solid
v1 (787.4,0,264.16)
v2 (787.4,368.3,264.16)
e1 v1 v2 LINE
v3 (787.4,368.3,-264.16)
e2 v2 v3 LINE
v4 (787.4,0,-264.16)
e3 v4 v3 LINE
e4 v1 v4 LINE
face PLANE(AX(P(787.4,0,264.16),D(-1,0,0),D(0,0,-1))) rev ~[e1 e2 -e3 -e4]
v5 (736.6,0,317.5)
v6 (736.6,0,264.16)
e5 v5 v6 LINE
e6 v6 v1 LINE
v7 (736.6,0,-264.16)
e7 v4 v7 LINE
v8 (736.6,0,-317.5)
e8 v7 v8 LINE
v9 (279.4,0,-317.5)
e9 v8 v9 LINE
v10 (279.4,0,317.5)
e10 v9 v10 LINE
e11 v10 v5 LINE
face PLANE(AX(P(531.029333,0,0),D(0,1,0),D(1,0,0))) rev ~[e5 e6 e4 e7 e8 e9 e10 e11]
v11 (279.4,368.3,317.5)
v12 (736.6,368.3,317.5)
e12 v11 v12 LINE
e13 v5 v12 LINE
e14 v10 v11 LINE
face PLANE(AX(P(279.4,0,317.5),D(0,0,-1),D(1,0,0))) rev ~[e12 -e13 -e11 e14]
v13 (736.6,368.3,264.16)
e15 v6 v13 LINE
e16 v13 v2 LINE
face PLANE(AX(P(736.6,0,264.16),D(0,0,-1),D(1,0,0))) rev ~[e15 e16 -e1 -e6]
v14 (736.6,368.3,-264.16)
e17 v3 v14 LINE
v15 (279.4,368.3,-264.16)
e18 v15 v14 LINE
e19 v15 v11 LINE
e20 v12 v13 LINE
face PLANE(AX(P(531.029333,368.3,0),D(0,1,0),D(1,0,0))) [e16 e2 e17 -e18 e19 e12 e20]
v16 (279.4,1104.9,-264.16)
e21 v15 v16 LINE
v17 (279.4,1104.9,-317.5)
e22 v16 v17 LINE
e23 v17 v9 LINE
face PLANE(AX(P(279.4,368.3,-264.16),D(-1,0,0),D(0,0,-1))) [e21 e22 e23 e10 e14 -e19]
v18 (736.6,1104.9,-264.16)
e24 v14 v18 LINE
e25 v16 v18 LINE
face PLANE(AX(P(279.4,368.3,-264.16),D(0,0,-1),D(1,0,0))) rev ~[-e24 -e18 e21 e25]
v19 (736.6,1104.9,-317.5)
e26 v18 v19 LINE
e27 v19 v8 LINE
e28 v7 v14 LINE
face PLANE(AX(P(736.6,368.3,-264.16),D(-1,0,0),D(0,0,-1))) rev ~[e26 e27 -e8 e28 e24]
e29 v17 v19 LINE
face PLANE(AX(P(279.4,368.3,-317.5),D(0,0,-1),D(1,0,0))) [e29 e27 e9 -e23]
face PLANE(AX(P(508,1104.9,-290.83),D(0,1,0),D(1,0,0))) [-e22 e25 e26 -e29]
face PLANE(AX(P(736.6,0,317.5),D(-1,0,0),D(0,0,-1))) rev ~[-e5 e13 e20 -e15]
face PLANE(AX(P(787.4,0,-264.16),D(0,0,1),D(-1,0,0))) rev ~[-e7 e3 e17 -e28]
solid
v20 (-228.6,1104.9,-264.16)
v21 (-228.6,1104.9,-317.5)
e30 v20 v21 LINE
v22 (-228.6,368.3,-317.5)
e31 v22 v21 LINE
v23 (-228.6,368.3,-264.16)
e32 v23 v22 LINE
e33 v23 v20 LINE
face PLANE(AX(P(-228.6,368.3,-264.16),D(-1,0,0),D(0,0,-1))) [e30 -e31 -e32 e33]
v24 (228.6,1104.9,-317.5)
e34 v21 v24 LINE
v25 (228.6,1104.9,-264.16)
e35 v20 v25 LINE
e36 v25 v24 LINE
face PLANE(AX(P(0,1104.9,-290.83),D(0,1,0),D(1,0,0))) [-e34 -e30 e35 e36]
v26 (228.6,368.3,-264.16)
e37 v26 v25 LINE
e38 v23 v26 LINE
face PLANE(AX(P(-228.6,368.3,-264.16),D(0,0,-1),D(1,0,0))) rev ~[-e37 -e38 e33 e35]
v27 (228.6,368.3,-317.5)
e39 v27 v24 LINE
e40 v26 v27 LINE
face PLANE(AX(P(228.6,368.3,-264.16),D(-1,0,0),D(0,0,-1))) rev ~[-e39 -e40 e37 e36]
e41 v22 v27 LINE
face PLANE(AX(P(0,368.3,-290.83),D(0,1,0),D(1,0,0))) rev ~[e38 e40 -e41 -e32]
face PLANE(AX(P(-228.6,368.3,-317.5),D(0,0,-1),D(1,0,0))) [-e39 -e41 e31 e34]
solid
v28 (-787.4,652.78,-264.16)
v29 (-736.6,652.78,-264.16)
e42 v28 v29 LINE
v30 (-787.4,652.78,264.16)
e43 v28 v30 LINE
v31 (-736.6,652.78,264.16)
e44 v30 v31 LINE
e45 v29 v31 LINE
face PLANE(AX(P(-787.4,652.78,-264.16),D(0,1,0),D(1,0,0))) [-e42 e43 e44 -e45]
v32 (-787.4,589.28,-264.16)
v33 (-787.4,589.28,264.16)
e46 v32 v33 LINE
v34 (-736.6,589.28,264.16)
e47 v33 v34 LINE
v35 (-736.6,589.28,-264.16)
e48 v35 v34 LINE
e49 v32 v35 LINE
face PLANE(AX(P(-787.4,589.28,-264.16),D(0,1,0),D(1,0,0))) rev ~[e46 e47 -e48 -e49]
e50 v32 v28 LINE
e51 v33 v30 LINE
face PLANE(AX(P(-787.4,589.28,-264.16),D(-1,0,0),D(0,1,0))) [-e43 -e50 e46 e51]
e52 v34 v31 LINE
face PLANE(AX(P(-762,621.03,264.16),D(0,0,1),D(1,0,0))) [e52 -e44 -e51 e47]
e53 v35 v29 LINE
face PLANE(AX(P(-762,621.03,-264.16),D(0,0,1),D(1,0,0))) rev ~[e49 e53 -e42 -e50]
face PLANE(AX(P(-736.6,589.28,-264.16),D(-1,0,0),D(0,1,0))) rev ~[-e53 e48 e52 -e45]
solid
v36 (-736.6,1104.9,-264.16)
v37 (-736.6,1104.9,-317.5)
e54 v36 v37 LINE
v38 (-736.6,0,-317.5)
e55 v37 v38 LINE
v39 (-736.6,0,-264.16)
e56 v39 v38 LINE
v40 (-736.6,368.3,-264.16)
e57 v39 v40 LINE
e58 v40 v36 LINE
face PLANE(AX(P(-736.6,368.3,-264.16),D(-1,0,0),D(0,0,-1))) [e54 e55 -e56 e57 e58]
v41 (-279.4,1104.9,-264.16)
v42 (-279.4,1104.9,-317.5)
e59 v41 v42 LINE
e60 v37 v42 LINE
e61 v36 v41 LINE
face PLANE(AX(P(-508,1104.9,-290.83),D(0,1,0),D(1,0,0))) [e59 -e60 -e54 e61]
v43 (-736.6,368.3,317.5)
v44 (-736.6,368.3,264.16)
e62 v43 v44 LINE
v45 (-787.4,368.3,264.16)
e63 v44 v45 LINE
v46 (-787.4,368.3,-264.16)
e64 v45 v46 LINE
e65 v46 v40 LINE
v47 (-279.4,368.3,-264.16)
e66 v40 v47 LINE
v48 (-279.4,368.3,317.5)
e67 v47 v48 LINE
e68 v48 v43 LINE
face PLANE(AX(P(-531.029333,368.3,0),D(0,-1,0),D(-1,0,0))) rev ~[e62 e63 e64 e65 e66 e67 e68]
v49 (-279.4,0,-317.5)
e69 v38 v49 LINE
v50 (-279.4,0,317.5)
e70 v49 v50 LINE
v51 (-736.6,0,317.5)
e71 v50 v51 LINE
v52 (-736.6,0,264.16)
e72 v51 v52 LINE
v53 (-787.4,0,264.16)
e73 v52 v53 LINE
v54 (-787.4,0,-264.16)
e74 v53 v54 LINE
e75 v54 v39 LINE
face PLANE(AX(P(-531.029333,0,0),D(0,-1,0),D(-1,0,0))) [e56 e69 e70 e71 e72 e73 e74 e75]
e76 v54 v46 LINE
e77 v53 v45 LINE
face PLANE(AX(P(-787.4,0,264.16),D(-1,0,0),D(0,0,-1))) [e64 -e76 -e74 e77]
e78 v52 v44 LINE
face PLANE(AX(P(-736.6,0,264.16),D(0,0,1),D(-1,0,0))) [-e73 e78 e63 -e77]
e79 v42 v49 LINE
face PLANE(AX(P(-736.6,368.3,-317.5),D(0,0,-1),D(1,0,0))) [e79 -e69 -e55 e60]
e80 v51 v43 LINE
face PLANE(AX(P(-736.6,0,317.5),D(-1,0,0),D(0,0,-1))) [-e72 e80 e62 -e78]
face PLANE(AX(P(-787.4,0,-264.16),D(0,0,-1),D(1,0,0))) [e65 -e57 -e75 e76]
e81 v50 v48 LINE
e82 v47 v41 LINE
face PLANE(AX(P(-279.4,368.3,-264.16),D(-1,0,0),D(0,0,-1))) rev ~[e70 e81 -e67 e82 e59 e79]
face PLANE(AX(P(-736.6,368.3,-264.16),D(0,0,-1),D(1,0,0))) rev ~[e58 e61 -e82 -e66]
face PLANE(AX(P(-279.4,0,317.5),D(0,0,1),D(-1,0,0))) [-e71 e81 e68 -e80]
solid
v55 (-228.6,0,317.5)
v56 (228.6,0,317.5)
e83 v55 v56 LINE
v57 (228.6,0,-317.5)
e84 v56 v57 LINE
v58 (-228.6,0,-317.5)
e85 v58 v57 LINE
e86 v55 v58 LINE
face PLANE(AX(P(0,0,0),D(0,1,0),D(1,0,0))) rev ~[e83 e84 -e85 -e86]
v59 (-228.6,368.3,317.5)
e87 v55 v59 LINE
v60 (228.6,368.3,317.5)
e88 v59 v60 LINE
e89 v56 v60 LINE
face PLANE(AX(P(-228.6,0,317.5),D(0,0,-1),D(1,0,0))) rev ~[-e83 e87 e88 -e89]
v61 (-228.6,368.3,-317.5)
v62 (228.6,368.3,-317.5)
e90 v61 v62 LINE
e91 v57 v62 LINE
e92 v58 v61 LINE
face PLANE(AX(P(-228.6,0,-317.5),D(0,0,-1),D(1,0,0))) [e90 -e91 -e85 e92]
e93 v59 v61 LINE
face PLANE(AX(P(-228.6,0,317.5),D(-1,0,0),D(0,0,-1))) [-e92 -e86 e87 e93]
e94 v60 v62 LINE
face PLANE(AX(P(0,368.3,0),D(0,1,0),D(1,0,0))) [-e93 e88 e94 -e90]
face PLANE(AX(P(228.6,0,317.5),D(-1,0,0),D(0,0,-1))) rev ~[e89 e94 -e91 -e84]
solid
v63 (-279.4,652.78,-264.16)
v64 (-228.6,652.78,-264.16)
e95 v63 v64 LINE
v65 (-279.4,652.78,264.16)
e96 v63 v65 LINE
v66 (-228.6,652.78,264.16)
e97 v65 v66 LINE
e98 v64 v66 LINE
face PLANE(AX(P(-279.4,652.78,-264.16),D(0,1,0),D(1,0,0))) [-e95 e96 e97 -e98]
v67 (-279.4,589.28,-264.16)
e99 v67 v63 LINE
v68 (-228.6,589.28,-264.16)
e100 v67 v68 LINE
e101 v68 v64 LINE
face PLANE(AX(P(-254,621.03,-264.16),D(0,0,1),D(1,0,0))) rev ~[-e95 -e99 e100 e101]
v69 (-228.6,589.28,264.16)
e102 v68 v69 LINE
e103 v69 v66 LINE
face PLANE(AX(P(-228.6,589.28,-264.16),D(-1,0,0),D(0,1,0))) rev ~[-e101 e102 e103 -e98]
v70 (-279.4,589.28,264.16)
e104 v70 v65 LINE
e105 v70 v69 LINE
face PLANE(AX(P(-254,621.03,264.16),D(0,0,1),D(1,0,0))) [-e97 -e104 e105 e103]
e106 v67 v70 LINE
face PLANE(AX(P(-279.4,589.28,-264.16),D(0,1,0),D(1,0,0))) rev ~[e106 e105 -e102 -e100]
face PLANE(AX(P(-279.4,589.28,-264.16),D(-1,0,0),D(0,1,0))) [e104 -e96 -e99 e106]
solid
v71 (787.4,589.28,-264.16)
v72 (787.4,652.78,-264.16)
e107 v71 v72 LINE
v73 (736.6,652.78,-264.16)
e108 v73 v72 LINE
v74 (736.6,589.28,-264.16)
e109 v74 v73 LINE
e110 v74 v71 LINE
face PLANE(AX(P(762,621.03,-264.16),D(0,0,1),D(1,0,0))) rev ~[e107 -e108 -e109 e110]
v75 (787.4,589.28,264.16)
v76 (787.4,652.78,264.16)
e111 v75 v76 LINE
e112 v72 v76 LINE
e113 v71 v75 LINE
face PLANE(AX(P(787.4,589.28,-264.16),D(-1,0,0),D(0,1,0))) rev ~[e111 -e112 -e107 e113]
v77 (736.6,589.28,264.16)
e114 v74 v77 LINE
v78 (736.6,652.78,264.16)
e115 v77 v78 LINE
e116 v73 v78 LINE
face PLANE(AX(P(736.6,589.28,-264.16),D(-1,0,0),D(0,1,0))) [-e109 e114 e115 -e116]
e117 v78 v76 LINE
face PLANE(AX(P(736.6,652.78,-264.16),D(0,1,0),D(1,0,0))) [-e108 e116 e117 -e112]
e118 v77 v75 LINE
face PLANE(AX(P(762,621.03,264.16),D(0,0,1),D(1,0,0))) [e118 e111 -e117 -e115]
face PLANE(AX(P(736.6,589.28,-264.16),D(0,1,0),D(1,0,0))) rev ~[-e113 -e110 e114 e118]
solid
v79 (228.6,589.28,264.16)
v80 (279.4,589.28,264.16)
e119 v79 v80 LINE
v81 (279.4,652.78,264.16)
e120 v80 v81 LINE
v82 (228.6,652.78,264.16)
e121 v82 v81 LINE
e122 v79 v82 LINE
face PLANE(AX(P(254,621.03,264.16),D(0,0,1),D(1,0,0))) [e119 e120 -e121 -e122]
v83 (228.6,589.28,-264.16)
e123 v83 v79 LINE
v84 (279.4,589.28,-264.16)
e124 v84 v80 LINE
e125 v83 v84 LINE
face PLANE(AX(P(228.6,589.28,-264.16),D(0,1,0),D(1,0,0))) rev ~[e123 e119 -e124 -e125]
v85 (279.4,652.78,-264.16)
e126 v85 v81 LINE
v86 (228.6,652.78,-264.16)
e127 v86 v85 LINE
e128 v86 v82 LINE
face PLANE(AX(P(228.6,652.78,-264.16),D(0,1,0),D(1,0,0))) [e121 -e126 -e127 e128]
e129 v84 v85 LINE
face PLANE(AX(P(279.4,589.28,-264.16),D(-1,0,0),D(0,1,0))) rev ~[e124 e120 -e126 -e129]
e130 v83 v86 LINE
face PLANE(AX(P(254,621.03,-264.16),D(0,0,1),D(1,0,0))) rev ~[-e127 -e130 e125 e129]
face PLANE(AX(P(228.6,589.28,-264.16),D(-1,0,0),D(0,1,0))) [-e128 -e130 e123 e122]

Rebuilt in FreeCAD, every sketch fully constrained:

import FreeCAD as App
import Part
import Sketcher
from FreeCAD import Vector
Q = App.Units.Quantity


def add_polygon(sketch, points):
    """Adds a closed chain of lines whose ends are joined by coincident constraints."""
    first, n = sketch.GeometryCount, len(points)
    for a, b in zip(points, points[1:] + points[:1]):
        sketch.addGeometry(Part.LineSegment(App.Vector(*a, 0), App.Vector(*b, 0)), False)
    for i in range(n):
        sketch.addConstraint(Sketcher.Constraint("Coincident", first + i, 2, first + (i + 1) % n, 1))

doc = App.newDocument("Part")
body = doc.addObject("PartDesign::Body", "Body")

# Sketch on XZ plane
sketch1 = doc.addObject("Sketcher::SketchObject", "Sketch")
body.addObject(sketch1)
sketch1.AttachmentSupport = (doc.XZ_Plane, [""])
sketch1.MapMode = "FlatFace"
add_polygon(sketch1, [(-737, -264), (-787, -264), (-787, 264), (-737, 264), (-737, 318), (-279, 318), (-279, -318), (-737, -318)])  # lines 0-7
sketch1.addConstraint(Sketcher.Constraint("Horizontal", 0))
sketch1.addConstraint(Sketcher.Constraint("Vertical", 1))
sketch1.addConstraint(Sketcher.Constraint("Horizontal", 2))
sketch1.addConstraint(Sketcher.Constraint("Vertical", 3))
sketch1.addConstraint(Sketcher.Constraint("Horizontal", 4))
sketch1.addConstraint(Sketcher.Constraint("Vertical", 5))
sketch1.addConstraint(Sketcher.Constraint("Horizontal", 6))
sketch1.addConstraint(Sketcher.Constraint("Vertical", 7))
sketch1.addConstraint(Sketcher.Constraint("Symmetric", 3, 2, 6, 2, -1))
sketch1.addConstraint(Sketcher.Constraint("Equal", 3, 7))
sketch1.addConstraint(Sketcher.Constraint("DistanceX", 0, 2, 0, 1, Q("2 in")))
sketch1.addConstraint(Sketcher.Constraint("DistanceX", 4, 1, 4, 2, Q("18 in")))
sketch1.addConstraint(Sketcher.Constraint("DistanceY", 5, 2, 5, 1, Q("25 in")))
sketch1.addConstraint(Sketcher.Constraint("DistanceY", 1, 1, 1, 2, Q("20.8 in")))
sketch1.addConstraint(Sketcher.Constraint("DistanceX", 0, 2, -1, 1, Q("31 in")))
pad1 = doc.addObject("PartDesign::Pad", "Pad")
body.addObject(pad1)
pad1.Profile = sketch1
pad1.Length = Q("14.5 in")
pad1.Reversed = True
body2 = doc.addObject("PartDesign::Body", "Body001")

# Sketch on XZ plane
sketch2 = doc.addObject("Sketcher::SketchObject", "Sketch001")
body2.addObject(sketch2)
sketch2.AttachmentSupport = (doc.getObject("XZ_Plane001"), [""])
sketch2.MapMode = "FlatFace"
add_polygon(sketch2, [(279, 318), (737, 318), (737, 264), (787, 264), (787, -264), (737, -264), (737, -318), (279, -318)])  # lines 0-7
sketch2.addConstraint(Sketcher.Constraint("Horizontal", 0))
sketch2.addConstraint(Sketcher.Constraint("Vertical", 1))
sketch2.addConstraint(Sketcher.Constraint("Horizontal", 2))
sketch2.addConstraint(Sketcher.Constraint("Vertical", 3))
sketch2.addConstraint(Sketcher.Constraint("Horizontal", 4))
sketch2.addConstraint(Sketcher.Constraint("Vertical", 5))
sketch2.addConstraint(Sketcher.Constraint("Horizontal", 6))
sketch2.addConstraint(Sketcher.Constraint("Vertical", 7))
sketch2.addConstraint(Sketcher.Constraint("Symmetric", 1, 2, 4, 2, -1))
sketch2.addConstraint(Sketcher.Constraint("Equal", 1, 5))
sketch2.addConstraint(Sketcher.Constraint("DistanceX", 0, 1, 0, 2, Q("18 in")))
sketch2.addConstraint(Sketcher.Constraint("DistanceX", 2, 1, 2, 2, Q("2 in")))
sketch2.addConstraint(Sketcher.Constraint("DistanceY", 7, 1, 7, 2, Q("25 in")))
sketch2.addConstraint(Sketcher.Constraint("DistanceY", 1, 2, 1, 1, Q("2.1 in")))
sketch2.addConstraint(Sketcher.Constraint("DistanceX", -1, 1, 0, 2, Q("29 in")))
pad2 = doc.addObject("PartDesign::Pad", "Pad001")
body2.addObject(pad2)
pad2.Profile = sketch2
pad2.Length = Q("14.5 in")
pad2.Reversed = True
body3 = doc.addObject("PartDesign::Body", "Body002")

# Sketch on XZ plane
sketch3 = doc.addObject("Sketcher::SketchObject", "Sketch002")
body3.addObject(sketch3)
sketch3.AttachmentSupport = (doc.getObject("XZ_Plane002"), [""])
sketch3.MapMode = "FlatFace"
add_polygon(sketch3, [(-229, -318), (-229, 318), (229, 318), (229, -318)])  # lines 0-3
sketch3.addConstraint(Sketcher.Constraint("Vertical", 0))
sketch3.addConstraint(Sketcher.Constraint("Horizontal", 1))
sketch3.addConstraint(Sketcher.Constraint("Vertical", 2))
sketch3.addConstraint(Sketcher.Constraint("Horizontal", 3))
sketch3.addConstraint(Sketcher.Constraint("Symmetric", 0, 2, 2, 2, -1, 1))
sketch3.addConstraint(Sketcher.Constraint("DistanceX", 1, 1, 1, 2, Q("18 in")))
sketch3.addConstraint(Sketcher.Constraint("DistanceY", 0, 1, 0, 2, Q("25 in")))
pad3 = doc.addObject("PartDesign::Pad", "Pad002")
body3.addObject(pad3)
pad3.Profile = sketch3
pad3.Length = Q("14.5 in")
pad3.Reversed = True
body.AllowCompound = True
doc.recompute()

boolean = doc.addObject("PartDesign::Boolean", "Boolean")
body.addObject(boolean)
boolean.Type = "Fuse"
boolean.addObjects([body2])

# Sketch on XZ plane
sketch4 = doc.addObject("Sketcher::SketchObject", "Sketch003")
body.addObject(sketch4)
sketch4.AttachmentSupport = (doc.XZ_Plane, [""])
sketch4.MapMode = "FlatFace"
sketch4.AttachmentOffset = App.Placement(Vector(0, 0, -14.5 * 25.4), App.Rotation())
add_polygon(sketch4, [(-737, -318), (-737, -264), (-279, -264), (-279, -318)])  # lines 0-3
add_polygon(sketch4, [(279, -318), (279, -264), (737, -264), (737, -318)])  # lines 4-7
add_polygon(sketch4, [(-229, -318), (-229, -264), (229, -264), (229, -318)])  # lines 8-11
sketch4.addConstraint(Sketcher.Constraint("Vertical", 0))
sketch4.addConstraint(Sketcher.Constraint("Horizontal", 1))
sketch4.addConstraint(Sketcher.Constraint("Vertical", 2))
sketch4.addConstraint(Sketcher.Constraint("Horizontal", 3))
sketch4.addConstraint(Sketcher.Constraint("Vertical", 4))
sketch4.addConstraint(Sketcher.Constraint("Horizontal", 5))
sketch4.addConstraint(Sketcher.Constraint("Vertical", 6))
sketch4.addConstraint(Sketcher.Constraint("Horizontal", 7))
sketch4.addConstraint(Sketcher.Constraint("Vertical", 8))
sketch4.addConstraint(Sketcher.Constraint("Horizontal", 9))
sketch4.addConstraint(Sketcher.Constraint("Vertical", 10))
sketch4.addConstraint(Sketcher.Constraint("Horizontal", 11))
sketch4.addConstraint(Sketcher.Constraint("Symmetric", 1, 2, 4, 2, -2))
sketch4.addConstraint(Sketcher.Constraint("Symmetric", 3, 2, 6, 2, -2))
sketch4.addConstraint(Sketcher.Constraint("Horizontal", 5, 2, 8, 2))
sketch4.addConstraint(Sketcher.Constraint("Horizontal", 7, 2, 10, 2))
sketch4.addConstraint(Sketcher.Constraint("Equal", 7, 9))
sketch4.addConstraint(Sketcher.Constraint("DistanceX", 1, 1, 1, 2, Q("18 in")))
sketch4.addConstraint(Sketcher.Constraint("DistanceY", 0, 1, 0, 2, Q("2.1 in")))
sketch4.addConstraint(Sketcher.Constraint("DistanceX", 0, 2, -1, 1, Q("29 in")))
sketch4.addConstraint(Sketcher.Constraint("DistanceX", 8, 2, -1, 1, Q("9 in")))
sketch4.addConstraint(Sketcher.Constraint("DistanceY", 0, 2, -1, 1, Q("10.4 in")))
pad4 = doc.addObject("PartDesign::Pad", "Pad003")
body.addObject(pad4)
pad4.Profile = sketch4
pad4.Length = Q("29 in")
pad4.Reversed = True
body4 = doc.addObject("PartDesign::Body", "Body003")

# Sketch on XY plane
sketch5 = doc.addObject("Sketcher::SketchObject", "Sketch004")
body4.addObject(sketch5)
sketch5.AttachmentSupport = (doc.getObject("XY_Plane003"), [""])
sketch5.MapMode = "FlatFace"
sketch5.AttachmentOffset = App.Placement(Vector(0, 0, -10.4 * 25.4), App.Rotation())
add_polygon(sketch5, [(-787, 653), (-787, 589), (-737, 589), (-737, 653)])  # lines 0-3
sketch5.addConstraint(Sketcher.Constraint("Vertical", 0))
sketch5.addConstraint(Sketcher.Constraint("Horizontal", 1))
sketch5.addConstraint(Sketcher.Constraint("Vertical", 2))
sketch5.addConstraint(Sketcher.Constraint("Horizontal", 3))
sketch5.addConstraint(Sketcher.Constraint("DistanceX", 1, 1, 1, 2, Q("2 in")))
sketch5.addConstraint(Sketcher.Constraint("DistanceY", 0, 2, 0, 1, Q("2.5 in")))
sketch5.addConstraint(Sketcher.Constraint("DistanceX", 0, 2, -1, 1, Q("31 in")))
sketch5.addConstraint(Sketcher.Constraint("DistanceY", -1, 1, 0, 2, Q("23.2 in")))
pad5 = doc.addObject("PartDesign::Pad", "Pad004")
body4.addObject(pad5)
pad5.Profile = sketch5
pad5.Length = Q("20.8 in")
body5 = doc.addObject("PartDesign::Body", "Body004")

# Sketch on XY plane
sketch6 = doc.addObject("Sketcher::SketchObject", "Sketch005")
body5.addObject(sketch6)
sketch6.AttachmentSupport = (doc.getObject("XY_Plane004"), [""])
sketch6.MapMode = "FlatFace"
sketch6.AttachmentOffset = App.Placement(Vector(0, 0, -10.4 * 25.4), App.Rotation())
add_polygon(sketch6, [(737, 653), (737, 589), (787, 589), (787, 653)])  # lines 0-3
sketch6.addConstraint(Sketcher.Constraint("Vertical", 0))
sketch6.addConstraint(Sketcher.Constraint("Horizontal", 1))
sketch6.addConstraint(Sketcher.Constraint("Vertical", 2))
sketch6.addConstraint(Sketcher.Constraint("Horizontal", 3))
sketch6.addConstraint(Sketcher.Constraint("DistanceX", 1, 1, 1, 2, Q("2 in")))
sketch6.addConstraint(Sketcher.Constraint("DistanceY", 0, 2, 0, 1, Q("2.5 in")))
sketch6.addConstraint(Sketcher.Constraint("DistanceX", -1, 1, 0, 2, Q("29 in")))
sketch6.addConstraint(Sketcher.Constraint("DistanceY", -1, 1, 0, 2, Q("23.2 in")))
pad6 = doc.addObject("PartDesign::Pad", "Pad005")
body5.addObject(pad6)
pad6.Profile = sketch6
pad6.Length = Q("20.8 in")
body6 = doc.addObject("PartDesign::Body", "Body005")

# Sketch on XY plane
sketch7 = doc.addObject("Sketcher::SketchObject", "Sketch006")
body6.addObject(sketch7)
sketch7.AttachmentSupport = (doc.getObject("XY_Plane005"), [""])
sketch7.MapMode = "FlatFace"
sketch7.AttachmentOffset = App.Placement(Vector(0, 0, -10.4 * 25.4), App.Rotation())
add_polygon(sketch7, [(-279, 653), (-279, 589), (-229, 589), (-229, 653)])  # lines 0-3
sketch7.addConstraint(Sketcher.Constraint("Vertical", 0))
sketch7.addConstraint(Sketcher.Constraint("Horizontal", 1))
sketch7.addConstraint(Sketcher.Constraint("Vertical", 2))
sketch7.addConstraint(Sketcher.Constraint("Horizontal", 3))
sketch7.addConstraint(Sketcher.Constraint("DistanceX", 1, 1, 1, 2, Q("2 in")))
sketch7.addConstraint(Sketcher.Constraint("DistanceY", 0, 2, 0, 1, Q("2.5 in")))
sketch7.addConstraint(Sketcher.Constraint("DistanceX", 0, 2, -1, 1, Q("11 in")))
sketch7.addConstraint(Sketcher.Constraint("DistanceY", -1, 1, 0, 2, Q("23.2 in")))
pad7 = doc.addObject("PartDesign::Pad", "Pad006")
body6.addObject(pad7)
pad7.Profile = sketch7
pad7.Length = Q("20.8 in")
body7 = doc.addObject("PartDesign::Body", "Body006")

# Sketch on XY plane
sketch8 = doc.addObject("Sketcher::SketchObject", "Sketch007")
body7.addObject(sketch8)
sketch8.AttachmentSupport = (doc.getObject("XY_Plane006"), [""])
sketch8.MapMode = "FlatFace"
sketch8.AttachmentOffset = App.Placement(Vector(0, 0, -10.4 * 25.4), App.Rotation())
add_polygon(sketch8, [(229, 653), (229, 589), (279, 589), (279, 653)])  # lines 0-3
sketch8.addConstraint(Sketcher.Constraint("Vertical", 0))
sketch8.addConstraint(Sketcher.Constraint("Horizontal", 1))
sketch8.addConstraint(Sketcher.Constraint("Vertical", 2))
sketch8.addConstraint(Sketcher.Constraint("Horizontal", 3))
sketch8.addConstraint(Sketcher.Constraint("DistanceX", 1, 1, 1, 2, Q("2 in")))
sketch8.addConstraint(Sketcher.Constraint("DistanceY", 0, 2, 0, 1, Q("2.5 in")))
sketch8.addConstraint(Sketcher.Constraint("DistanceX", -1, 1, 0, 2, Q("9 in")))
sketch8.addConstraint(Sketcher.Constraint("DistanceY", -1, 1, 0, 2, Q("23.2 in")))
pad8 = doc.addObject("PartDesign::Pad", "Pad007")
body7.addObject(pad8)
pad8.Profile = sketch8
pad8.Length = Q("20.8 in")

doc.recompute()
